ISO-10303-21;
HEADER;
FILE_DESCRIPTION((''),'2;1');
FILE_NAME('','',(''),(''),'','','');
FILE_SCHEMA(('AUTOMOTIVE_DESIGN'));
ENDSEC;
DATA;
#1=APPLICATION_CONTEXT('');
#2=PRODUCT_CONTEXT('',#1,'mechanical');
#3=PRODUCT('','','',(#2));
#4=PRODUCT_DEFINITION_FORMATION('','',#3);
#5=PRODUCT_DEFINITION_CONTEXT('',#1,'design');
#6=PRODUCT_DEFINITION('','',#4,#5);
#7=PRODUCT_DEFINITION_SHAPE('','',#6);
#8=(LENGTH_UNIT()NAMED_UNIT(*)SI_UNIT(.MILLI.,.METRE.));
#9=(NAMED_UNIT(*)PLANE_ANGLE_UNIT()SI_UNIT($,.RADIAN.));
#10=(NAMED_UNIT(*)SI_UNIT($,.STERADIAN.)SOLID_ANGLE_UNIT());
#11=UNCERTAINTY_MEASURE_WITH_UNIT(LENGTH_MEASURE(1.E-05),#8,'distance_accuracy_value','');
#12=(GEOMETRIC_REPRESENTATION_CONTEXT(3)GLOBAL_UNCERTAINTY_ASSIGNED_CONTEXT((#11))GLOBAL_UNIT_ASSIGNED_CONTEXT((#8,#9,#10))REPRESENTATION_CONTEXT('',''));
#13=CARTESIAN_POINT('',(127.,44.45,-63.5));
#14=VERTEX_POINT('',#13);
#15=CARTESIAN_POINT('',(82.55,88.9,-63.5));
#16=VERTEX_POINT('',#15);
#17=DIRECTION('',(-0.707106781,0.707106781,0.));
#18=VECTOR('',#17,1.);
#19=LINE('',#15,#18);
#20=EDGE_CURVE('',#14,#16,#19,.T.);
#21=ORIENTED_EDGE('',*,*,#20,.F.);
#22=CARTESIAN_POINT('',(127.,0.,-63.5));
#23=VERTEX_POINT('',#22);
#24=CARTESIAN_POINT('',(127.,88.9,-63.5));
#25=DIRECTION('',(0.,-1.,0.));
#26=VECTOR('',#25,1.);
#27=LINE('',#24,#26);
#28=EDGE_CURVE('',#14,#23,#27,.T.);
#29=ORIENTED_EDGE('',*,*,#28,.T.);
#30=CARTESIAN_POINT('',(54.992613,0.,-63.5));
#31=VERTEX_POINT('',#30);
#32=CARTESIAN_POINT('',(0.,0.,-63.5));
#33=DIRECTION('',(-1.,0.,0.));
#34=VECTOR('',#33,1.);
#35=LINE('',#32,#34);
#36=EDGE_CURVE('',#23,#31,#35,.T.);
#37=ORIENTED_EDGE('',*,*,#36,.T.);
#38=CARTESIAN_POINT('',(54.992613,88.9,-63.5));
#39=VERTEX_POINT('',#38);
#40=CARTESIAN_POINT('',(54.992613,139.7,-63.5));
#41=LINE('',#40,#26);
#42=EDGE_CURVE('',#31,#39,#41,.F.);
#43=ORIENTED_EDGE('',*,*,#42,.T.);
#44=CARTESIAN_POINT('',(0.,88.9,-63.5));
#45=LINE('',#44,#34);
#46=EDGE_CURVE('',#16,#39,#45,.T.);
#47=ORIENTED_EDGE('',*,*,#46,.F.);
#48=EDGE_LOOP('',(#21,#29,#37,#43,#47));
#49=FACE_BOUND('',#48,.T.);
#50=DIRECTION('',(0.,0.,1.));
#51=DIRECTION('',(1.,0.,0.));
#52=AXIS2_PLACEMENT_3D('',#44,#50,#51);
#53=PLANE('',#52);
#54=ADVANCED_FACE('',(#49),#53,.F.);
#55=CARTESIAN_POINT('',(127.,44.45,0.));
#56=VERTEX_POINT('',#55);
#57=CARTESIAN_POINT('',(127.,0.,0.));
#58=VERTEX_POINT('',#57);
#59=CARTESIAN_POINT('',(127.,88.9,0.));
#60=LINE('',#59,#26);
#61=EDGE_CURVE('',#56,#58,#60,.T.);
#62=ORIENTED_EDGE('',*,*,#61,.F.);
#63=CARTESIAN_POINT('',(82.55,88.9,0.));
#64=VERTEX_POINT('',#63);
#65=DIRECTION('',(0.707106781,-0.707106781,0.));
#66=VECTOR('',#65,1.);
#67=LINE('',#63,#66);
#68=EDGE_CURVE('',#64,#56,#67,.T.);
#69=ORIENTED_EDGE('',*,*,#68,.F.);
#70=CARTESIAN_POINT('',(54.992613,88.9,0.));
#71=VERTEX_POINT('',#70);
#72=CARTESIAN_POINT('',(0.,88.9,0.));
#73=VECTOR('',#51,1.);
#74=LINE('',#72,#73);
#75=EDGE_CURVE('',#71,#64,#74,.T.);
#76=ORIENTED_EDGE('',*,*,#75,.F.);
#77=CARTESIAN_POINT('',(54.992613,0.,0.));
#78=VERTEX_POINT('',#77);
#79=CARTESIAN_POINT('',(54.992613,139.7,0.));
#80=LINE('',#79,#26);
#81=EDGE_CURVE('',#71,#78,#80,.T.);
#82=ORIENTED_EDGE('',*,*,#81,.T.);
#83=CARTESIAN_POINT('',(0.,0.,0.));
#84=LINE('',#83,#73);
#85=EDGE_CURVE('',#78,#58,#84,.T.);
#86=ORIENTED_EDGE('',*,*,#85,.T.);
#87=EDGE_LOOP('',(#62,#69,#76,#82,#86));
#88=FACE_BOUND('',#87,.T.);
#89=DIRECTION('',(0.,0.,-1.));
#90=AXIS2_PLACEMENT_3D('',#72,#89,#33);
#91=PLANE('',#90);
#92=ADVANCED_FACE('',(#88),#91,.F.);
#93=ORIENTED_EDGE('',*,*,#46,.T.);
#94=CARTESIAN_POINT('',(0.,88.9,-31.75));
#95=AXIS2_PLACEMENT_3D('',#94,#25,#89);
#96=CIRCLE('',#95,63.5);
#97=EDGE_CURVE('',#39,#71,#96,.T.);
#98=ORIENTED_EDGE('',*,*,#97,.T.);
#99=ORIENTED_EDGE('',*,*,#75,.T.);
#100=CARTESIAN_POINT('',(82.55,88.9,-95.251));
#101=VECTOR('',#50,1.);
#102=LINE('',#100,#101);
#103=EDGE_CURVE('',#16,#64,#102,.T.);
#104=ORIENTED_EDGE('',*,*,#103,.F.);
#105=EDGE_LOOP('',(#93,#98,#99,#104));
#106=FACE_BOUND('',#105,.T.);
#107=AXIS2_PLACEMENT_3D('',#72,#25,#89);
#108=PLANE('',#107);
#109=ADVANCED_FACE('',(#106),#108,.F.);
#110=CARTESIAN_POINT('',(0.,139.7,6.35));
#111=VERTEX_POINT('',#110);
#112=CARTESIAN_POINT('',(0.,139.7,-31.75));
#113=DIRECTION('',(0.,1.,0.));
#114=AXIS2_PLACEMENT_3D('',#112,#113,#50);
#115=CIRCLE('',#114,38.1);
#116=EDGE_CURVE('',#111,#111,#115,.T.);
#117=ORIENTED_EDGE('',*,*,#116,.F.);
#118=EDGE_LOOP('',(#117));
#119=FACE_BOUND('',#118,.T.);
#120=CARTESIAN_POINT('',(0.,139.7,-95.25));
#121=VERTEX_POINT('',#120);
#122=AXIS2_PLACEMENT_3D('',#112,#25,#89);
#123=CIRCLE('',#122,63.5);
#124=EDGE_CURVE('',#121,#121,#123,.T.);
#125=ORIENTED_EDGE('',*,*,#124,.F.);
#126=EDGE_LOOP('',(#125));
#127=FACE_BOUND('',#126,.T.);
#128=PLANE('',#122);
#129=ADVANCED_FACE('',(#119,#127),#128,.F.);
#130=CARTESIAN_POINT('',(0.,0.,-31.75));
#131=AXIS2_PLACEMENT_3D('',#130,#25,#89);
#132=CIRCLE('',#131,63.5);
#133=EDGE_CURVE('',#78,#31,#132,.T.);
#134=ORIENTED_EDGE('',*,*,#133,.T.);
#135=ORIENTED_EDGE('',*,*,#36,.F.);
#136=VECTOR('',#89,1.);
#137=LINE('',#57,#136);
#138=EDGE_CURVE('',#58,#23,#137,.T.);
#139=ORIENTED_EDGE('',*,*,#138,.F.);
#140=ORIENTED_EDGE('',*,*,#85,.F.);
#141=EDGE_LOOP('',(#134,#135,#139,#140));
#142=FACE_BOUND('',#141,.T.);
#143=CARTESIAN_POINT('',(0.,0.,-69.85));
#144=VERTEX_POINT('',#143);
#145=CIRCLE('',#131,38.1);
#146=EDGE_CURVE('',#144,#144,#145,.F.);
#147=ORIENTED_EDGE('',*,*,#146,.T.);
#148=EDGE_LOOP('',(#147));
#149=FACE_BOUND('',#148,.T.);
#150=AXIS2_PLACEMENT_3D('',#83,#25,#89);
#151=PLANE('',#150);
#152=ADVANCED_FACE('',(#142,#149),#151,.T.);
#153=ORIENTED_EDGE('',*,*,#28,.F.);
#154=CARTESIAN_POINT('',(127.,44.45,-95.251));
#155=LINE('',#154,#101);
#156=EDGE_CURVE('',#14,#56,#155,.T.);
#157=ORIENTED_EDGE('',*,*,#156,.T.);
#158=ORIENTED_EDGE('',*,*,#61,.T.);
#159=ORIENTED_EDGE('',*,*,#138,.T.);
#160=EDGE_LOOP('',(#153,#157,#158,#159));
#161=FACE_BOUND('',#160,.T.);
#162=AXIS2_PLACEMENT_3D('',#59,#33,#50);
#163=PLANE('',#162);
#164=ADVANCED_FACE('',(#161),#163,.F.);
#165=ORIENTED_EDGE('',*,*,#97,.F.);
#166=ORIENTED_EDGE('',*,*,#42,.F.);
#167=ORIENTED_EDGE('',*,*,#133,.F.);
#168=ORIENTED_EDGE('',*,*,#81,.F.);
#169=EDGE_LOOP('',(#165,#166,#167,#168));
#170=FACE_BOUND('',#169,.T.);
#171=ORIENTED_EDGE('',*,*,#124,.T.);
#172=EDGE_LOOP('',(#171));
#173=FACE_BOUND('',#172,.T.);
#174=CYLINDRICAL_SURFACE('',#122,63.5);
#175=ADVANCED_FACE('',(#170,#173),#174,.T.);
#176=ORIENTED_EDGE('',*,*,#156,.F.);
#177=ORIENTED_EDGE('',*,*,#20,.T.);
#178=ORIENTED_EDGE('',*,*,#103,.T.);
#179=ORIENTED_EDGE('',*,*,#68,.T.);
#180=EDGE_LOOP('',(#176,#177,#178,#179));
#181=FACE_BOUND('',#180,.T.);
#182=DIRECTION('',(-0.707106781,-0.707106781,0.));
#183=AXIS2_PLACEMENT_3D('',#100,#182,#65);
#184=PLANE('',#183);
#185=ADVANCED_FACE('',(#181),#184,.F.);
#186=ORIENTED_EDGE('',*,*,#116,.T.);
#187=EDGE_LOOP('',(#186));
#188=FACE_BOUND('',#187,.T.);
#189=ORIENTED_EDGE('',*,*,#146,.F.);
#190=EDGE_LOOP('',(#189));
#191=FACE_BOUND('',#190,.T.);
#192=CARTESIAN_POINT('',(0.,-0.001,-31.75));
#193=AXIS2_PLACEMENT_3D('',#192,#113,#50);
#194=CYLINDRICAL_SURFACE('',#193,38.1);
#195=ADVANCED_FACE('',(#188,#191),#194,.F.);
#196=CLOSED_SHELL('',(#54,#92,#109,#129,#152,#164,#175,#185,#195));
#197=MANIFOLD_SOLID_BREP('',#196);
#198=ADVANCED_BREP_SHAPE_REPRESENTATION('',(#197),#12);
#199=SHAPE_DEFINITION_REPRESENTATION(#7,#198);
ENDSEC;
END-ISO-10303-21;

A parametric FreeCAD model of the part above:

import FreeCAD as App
import Part
import Sketcher

V = App.Vector
Q = App.Units.Quantity

doc = App.newDocument("Part")
body = doc.addObject("PartDesign::Body", "Body")

# Sketch on XZ plane
sketch1 = body.newObject("Sketcher::SketchObject", "Sketch")
sketch1.AttachmentSupport = (doc.getObject("XZ_Plane"), [""])
sketch1.MapMode = "FlatFace"
sketch1.addGeometry([
    Part.LineSegment(V(0, -64, 0), V(0, 0, 0)),
    Part.LineSegment(V(0, 0, 0), V(127, 0, 0)),
    Part.LineSegment(V(127, 0, 0), V(127, -64, 0)),
    Part.LineSegment(V(127, -64, 0), V(0, -64, 0)),
], False)
sketch1.addConstraint([
    Sketcher.Constraint("Coincident", 0, 2, 1, 1),
    Sketcher.Constraint("Coincident", 1, 2, 2, 1),
    Sketcher.Constraint("Coincident", 2, 2, 3, 1),
    Sketcher.Constraint("Coincident", 3, 2, 0, 1),
    Sketcher.Constraint("Vertical", 0),
    Sketcher.Constraint("Horizontal", 1),
    Sketcher.Constraint("Vertical", 2),
    Sketcher.Constraint("Horizontal", 3),
    Sketcher.Constraint("Coincident", 0, 2, -1, 1),
    Sketcher.Constraint("DistanceX", 1, 1, 1, 2, Q("5 in")),
    Sketcher.Constraint("DistanceY", 0, 1, 0, 2, Q("2.5 in")),
])
pad1 = body.newObject("PartDesign::Pad", "Pad")
pad1.Profile = sketch1
pad1.Length = Q("3.5 in")
pad1.Reversed = True

# Sketch on XZ plane
sketch2 = body.newObject("Sketcher::SketchObject", "Sketch001")
sketch2.AttachmentSupport = (doc.getObject("XZ_Plane"), [""])
sketch2.MapMode = "FlatFace"
sketch2.addGeometry(Part.Circle(V(0, -32, 0), V(0, 0, 1), 64), False)
sketch2.addConstraint([
    Sketcher.Constraint("PointOnObject", 0, 3, -2),
    Sketcher.Constraint("Diameter", 0, Q("5 in")),
    Sketcher.Constraint("DistanceY", 0, 3, -1, 1, Q("1.25 in")),
])
pad2 = body.newObject("PartDesign::Pad", "Pad001")
pad2.Profile = sketch2
pad2.Length = Q("5.5 in")
pad2.Reversed = True

# Sketch on XY plane
sketch3 = body.newObject("Sketcher::SketchObject", "Sketch002")
sketch3.AttachmentSupport = (doc.getObject("XY_Plane"), [""])
sketch3.MapMode = "FlatFace"
sketch3.addGeometry([
    Part.LineSegment(V(83, 89, 0), V(127, 44, 0)),
    Part.LineSegment(V(127, 44, 0), V(127, 89, 0)),
    Part.LineSegment(V(127, 89, 0), V(83, 89, 0)),
], False)
sketch3.addConstraint([
    Sketcher.Constraint("Coincident", 0, 2, 1, 1),
    Sketcher.Constraint("Coincident", 1, 2, 2, 1),
    Sketcher.Constraint("Coincident", 2, 2, 0, 1),
    Sketcher.Constraint("Vertical", 1),
    Sketcher.Constraint("Horizontal", 2),
    Sketcher.Constraint("Equal", 2, 1),
    Sketcher.Constraint("DistanceX", -1, 1, 0, 2, Q("5 in")),
    Sketcher.Constraint("DistanceX", 2, 2, 2, 1, Q("1.75 in")),
    Sketcher.Constraint("DistanceY", -1, 1, 1, 2, Q("3.5 in")),
])
pocket1 = body.newObject("PartDesign::Pocket", "Pocket")
pocket1.Profile = sketch3
pocket1.Type = "UpToFirst"

# Sketch on XZ plane
sketch4 = body.newObject("Sketcher::SketchObject", "Sketch003")
sketch4.AttachmentSupport = (doc.getObject("XZ_Plane"), [""])
sketch4.MapMode = "FlatFace"
sketch4.AttachmentOffset = App.Placement(V(0, 0, -5.5 * 25.4), App.Rotation())
sketch4.addGeometry(Part.Circle(V(0, -32, 0), V(0, 0, 1), 38), False)
sketch4.addConstraint([
    Sketcher.Constraint("PointOnObject", 0, 3, -2),
    Sketcher.Constraint("Diameter", 0, Q("3 in")),
    Sketcher.Constraint("DistanceY", 0, 3, -1, 1, Q("1.25 in")),
])
pocket2 = body.newObject("PartDesign::Pocket", "Pocket001")
pocket2.Profile = sketch4
pocket2.Type = "UpToFirst"
pocket2.Reversed = True

doc.recompute()
